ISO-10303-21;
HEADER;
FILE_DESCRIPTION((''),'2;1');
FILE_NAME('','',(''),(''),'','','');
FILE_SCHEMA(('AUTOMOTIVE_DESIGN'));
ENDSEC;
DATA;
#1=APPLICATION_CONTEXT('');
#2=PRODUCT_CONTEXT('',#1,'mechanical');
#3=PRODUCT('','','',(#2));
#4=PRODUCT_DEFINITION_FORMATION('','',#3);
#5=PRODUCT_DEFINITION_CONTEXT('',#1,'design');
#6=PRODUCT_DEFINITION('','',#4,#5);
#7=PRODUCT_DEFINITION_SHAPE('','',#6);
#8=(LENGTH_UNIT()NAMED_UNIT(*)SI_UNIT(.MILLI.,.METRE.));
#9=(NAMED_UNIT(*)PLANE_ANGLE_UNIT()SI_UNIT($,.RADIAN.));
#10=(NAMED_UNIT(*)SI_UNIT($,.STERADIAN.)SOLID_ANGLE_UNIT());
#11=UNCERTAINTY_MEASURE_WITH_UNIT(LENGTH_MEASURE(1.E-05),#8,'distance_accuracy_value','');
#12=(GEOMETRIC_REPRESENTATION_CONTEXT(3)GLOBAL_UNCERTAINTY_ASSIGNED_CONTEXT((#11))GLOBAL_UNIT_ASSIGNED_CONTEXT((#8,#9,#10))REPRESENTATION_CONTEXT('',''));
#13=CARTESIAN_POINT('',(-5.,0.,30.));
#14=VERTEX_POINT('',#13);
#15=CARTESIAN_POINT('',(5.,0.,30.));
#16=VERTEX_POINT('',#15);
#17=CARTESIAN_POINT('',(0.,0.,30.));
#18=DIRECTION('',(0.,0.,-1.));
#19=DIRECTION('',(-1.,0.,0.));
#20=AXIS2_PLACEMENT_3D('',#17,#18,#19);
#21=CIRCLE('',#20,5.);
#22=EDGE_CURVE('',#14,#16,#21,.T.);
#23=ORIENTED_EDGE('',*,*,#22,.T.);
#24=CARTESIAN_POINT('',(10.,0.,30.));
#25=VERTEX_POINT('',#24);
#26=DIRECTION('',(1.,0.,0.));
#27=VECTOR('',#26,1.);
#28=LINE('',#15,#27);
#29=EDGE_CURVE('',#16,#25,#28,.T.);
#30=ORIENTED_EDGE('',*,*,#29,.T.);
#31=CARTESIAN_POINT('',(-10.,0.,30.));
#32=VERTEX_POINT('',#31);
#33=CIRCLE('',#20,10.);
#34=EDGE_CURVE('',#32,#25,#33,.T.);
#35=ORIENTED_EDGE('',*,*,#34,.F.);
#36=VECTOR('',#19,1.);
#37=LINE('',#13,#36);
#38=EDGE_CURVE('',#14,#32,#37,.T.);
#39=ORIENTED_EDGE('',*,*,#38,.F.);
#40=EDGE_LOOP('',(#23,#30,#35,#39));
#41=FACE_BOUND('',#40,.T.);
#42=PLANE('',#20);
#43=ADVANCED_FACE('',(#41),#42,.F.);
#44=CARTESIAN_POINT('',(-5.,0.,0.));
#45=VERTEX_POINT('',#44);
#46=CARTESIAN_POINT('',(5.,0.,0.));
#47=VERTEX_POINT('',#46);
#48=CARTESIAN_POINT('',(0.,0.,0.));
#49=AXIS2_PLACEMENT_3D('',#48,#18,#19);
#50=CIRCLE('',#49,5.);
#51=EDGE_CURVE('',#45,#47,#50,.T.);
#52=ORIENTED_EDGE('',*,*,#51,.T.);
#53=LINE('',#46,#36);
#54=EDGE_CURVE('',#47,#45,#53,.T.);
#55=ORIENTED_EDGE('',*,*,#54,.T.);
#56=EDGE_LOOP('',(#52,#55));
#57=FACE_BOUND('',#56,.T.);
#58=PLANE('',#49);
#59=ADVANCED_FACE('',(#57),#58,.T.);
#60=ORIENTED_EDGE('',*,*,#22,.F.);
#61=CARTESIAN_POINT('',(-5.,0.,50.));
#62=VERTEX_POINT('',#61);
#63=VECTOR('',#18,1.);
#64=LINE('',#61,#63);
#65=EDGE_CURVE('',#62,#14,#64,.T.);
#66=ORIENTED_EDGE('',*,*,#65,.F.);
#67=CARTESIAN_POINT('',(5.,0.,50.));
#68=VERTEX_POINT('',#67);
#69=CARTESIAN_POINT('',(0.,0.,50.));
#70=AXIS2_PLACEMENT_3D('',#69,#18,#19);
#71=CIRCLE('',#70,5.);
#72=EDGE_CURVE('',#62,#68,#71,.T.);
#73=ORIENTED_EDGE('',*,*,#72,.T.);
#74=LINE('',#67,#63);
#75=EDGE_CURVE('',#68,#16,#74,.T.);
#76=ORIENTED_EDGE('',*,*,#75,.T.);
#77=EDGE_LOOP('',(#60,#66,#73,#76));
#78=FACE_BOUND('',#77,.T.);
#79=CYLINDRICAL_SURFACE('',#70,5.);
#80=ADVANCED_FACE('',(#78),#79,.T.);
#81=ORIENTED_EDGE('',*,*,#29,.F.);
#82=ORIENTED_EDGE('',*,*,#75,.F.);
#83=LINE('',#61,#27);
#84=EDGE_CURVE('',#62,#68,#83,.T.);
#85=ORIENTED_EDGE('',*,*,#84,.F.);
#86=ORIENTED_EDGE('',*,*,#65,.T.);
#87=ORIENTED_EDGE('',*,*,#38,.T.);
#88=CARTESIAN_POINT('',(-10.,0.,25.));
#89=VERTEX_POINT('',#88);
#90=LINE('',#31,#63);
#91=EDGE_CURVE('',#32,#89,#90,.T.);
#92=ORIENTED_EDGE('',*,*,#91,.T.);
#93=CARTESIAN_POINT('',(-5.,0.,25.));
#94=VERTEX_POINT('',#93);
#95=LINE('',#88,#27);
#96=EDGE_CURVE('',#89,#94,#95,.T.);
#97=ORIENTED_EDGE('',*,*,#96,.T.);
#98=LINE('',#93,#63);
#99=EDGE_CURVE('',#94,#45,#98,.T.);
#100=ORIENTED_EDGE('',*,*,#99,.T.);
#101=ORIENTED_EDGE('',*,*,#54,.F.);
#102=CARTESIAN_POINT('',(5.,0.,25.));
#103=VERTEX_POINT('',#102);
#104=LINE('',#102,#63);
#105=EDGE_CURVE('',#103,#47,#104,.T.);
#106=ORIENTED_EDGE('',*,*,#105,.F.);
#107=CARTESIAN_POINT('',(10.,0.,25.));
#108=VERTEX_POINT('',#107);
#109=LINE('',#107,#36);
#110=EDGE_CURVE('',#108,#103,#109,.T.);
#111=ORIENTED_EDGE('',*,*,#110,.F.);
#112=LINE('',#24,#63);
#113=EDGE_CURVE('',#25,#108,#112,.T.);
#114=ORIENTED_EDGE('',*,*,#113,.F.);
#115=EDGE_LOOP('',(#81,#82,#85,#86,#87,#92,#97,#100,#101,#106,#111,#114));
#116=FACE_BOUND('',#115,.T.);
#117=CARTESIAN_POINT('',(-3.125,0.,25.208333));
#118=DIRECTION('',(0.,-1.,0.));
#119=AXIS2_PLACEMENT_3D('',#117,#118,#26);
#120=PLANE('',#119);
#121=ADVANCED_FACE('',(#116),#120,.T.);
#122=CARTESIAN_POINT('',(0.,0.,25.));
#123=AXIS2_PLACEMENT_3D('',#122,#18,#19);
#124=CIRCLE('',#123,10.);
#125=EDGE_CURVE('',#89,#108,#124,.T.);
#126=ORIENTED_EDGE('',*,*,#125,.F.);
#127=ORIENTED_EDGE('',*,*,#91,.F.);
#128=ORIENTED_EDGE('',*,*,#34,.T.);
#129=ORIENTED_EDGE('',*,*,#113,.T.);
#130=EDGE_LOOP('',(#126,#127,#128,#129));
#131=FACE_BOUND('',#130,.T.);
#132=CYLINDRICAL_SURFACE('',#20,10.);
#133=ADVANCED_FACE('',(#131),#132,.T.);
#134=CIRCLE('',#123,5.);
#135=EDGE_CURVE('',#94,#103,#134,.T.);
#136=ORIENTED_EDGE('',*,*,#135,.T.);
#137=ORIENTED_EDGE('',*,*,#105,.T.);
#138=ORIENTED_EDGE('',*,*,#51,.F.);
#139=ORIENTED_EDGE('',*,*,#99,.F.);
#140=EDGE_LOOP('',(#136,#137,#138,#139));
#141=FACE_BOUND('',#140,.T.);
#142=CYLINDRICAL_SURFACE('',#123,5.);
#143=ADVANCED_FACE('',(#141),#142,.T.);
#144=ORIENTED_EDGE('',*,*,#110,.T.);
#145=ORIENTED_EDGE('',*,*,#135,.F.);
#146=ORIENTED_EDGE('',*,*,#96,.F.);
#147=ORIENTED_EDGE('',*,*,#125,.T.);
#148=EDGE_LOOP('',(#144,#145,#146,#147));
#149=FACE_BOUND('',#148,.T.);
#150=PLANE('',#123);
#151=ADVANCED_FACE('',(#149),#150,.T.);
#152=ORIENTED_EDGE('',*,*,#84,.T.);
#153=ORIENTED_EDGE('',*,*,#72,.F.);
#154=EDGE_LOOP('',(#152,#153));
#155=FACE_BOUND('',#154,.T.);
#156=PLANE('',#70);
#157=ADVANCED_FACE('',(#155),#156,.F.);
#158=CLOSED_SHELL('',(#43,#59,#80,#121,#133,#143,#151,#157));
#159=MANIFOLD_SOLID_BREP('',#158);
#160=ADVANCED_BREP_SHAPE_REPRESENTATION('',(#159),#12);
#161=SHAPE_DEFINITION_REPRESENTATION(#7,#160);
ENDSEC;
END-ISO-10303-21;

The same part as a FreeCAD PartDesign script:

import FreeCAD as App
import Part
import Sketcher
from FreeCAD import Vector
Q = App.Units.Quantity

doc = App.newDocument("Part")
body = doc.addObject("PartDesign::Body", "Body")

sketch1 = body.newObject("Sketcher::SketchObject", "Sketch")
sketch1.AttachmentSupport = (doc.getObject("XZ_Plane"), [""])
sketch1.MapMode = "FlatFace"
sketch1.addGeometry(Part.LineSegment(Vector(0, 50, 0), Vector(-5, 50, 0)), False)
sketch1.addGeometry(Part.LineSegment(Vector(-5, 50, 0), Vector(-5, 30, 0)), False)
sketch1.addGeometry(Part.LineSegment(Vector(-5, 30, 0), Vector(-10, 30, 0)), False)
sketch1.addGeometry(Part.LineSegment(Vector(-10, 30, 0), Vector(-10, 25, 0)), False)
sketch1.addGeometry(Part.LineSegment(Vector(-10, 25, 0), Vector(-5, 25, 0)), False)
sketch1.addGeometry(Part.LineSegment(Vector(-5, 25, 0), Vector(-5, 0, 0)), False)
sketch1.addGeometry(Part.LineSegment(Vector(-5, 0, 0), Vector(0, 0, 0)), False)
sketch1.addGeometry(Part.LineSegment(Vector(0, 0, 0), Vector(0, 50, 0)), False)
sketch1.addConstraint(Sketcher.Constraint("Coincident", 0, 2, 1, 1))
sketch1.addConstraint(Sketcher.Constraint("Coincident", 1, 2, 2, 1))
sketch1.addConstraint(Sketcher.Constraint("Coincident", 2, 2, 3, 1))
sketch1.addConstraint(Sketcher.Constraint("Coincident", 3, 2, 4, 1))
sketch1.addConstraint(Sketcher.Constraint("Coincident", 4, 2, 5, 1))
sketch1.addConstraint(Sketcher.Constraint("Coincident", 5, 2, 6, 1))
sketch1.addConstraint(Sketcher.Constraint("Coincident", 6, 2, 7, 1))
sketch1.addConstraint(Sketcher.Constraint("Coincident", 7, 2, 0, 1))
sketch1.addConstraint(Sketcher.Constraint("Horizontal", 0))
sketch1.addConstraint(Sketcher.Constraint("Vertical", 1))
sketch1.addConstraint(Sketcher.Constraint("Horizontal", 2))
sketch1.addConstraint(Sketcher.Constraint("Vertical", 3))
sketch1.addConstraint(Sketcher.Constraint("Horizontal", 4))
sketch1.addConstraint(Sketcher.Constraint("Vertical", 5))
sketch1.addConstraint(Sketcher.Constraint("Horizontal", 6))
sketch1.addConstraint(Sketcher.Constraint("Vertical", 7))
sketch1.addConstraint(Sketcher.Constraint("Coincident", 6, 2, -1, 1))
sketch1.addConstraint(Sketcher.Constraint("Vertical", 1, 2, 4, 2))
sketch1.addConstraint(Sketcher.Constraint("Equal", 0, 2))
sketch1.addConstraint(Sketcher.Constraint("Equal", 6, 3))
sketch1.addConstraint(Sketcher.Constraint("DistanceX", 0, 2, 0, 1, Q("5 mm")))
sketch1.addConstraint(Sketcher.Constraint("DistanceY", 1, 2, 1, 1, Q("20 mm")))
sketch1.addConstraint(Sketcher.Constraint("DistanceY", 5, 2, 5, 1, Q("25 mm")))
revolution = body.newObject("PartDesign::Revolution", "Revolution")
revolution.Profile = sketch1
revolution.ReferenceAxis = (sketch1, ["V_Axis"])
revolution.Angle = 180
revolution.Reversed = True

doc.recompute()
